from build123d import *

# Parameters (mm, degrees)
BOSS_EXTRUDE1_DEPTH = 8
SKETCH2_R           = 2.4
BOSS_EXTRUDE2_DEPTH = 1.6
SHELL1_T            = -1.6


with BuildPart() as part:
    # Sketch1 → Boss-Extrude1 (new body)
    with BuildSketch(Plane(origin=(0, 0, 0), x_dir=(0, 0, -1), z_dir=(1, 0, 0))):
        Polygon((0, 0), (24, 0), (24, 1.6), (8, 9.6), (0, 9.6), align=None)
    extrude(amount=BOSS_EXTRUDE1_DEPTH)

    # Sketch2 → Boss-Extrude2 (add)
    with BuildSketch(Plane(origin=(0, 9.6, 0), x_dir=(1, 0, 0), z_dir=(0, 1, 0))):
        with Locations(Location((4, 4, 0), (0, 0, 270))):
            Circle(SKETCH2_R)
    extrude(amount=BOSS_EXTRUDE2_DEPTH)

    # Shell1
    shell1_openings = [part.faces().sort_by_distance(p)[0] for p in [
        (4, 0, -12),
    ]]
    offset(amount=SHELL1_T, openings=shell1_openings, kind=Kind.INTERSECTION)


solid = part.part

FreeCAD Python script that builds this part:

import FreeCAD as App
import Part
import Sketcher


def faces_at(feature, points):
    """Names of the faces that lie closest to the given points."""
    faces = feature.Shape.Faces
    near = lambda p: min(range(len(faces)), key=lambda i: faces[i].distToShape(Part.Vertex(*p))[0])
    return sorted({f"Face{near(p) + 1}" for p in points})


def add_polygon(sketch, points):
    """Adds a closed chain of lines whose ends are joined by coincident constraints."""
    first, n = sketch.GeometryCount, len(points)
    for a, b in zip(points, points[1:] + points[:1]):
        sketch.addGeometry(Part.LineSegment(App.Vector(*a, 0), App.Vector(*b, 0)), False)
    for i in range(n):
        sketch.addConstraint(Sketcher.Constraint("Coincident", first + i, 2, first + (i + 1) % n, 1))

doc = App.newDocument("Part")
params = doc.addObject("Spreadsheet::Sheet", "Params")
for row, (alias, value) in enumerate([
    ("sketch1_height", "24 mm"),
    ("sketch1_height2", "8 mm"),
    ("sketch1_width", "1.6 mm"),
    ("sketch1_width2", "9.6 mm"),
    ("pad1_length", "8 mm"),
    ("sketch2_diameter", "4.8 mm"),
    ("pad2_length", "1.6 mm"),
    ("thickness_wall", "1.6 mm"),
], start=1):
    params.set(f"A{row}", alias)
    params.set(f"B{row}", "=" + value)
    params.setAlias(f"B{row}", alias)

body = doc.addObject("PartDesign::Body", "Body")

# Sketch on YZ plane
sketch1 = body.newObject("Sketcher::SketchObject", "Sketch")
sketch1.AttachmentSupport = (doc.getObject("YZ_Plane"), [""])
sketch1.MapMode = "FlatFace"
add_polygon(sketch1, [(0, 0), (0, -24), (1.6, -24), (9.6, -8), (9.6, 0)])  # lines 0-4
sketch1.addConstraint([
    Sketcher.Constraint("Vertical", 0),
    Sketcher.Constraint("Horizontal", 1),
    Sketcher.Constraint("Vertical", 3),
    Sketcher.Constraint("Horizontal", 4),
    Sketcher.Constraint("Coincident", 4, 2, -1, 1),
    Sketcher.Constraint("DistanceY", 0, 2, 0, 1, 24.0),
    Sketcher.Constraint("DistanceY", 3, 1, 3, 2, 8.0),
    Sketcher.Constraint("DistanceX", 1, 1, 1, 2, 1.6),
    Sketcher.Constraint("DistanceX", 4, 2, 4, 1, 9.6),
])
sketch1.setExpression("Constraints[10]", "Params.sketch1_height")
sketch1.setExpression("Constraints[11]", "Params.sketch1_height2")
sketch1.setExpression("Constraints[12]", "Params.sketch1_width")
sketch1.setExpression("Constraints[13]", "Params.sketch1_width2")
pad1 = body.newObject("PartDesign::Pad", "Pad")
pad1.Profile = sketch1
pad1.setExpression("Length", "Params.pad1_length")

# Sketch on XZ plane
sketch2 = body.newObject("Sketcher::SketchObject", "Sketch001")
sketch2.AttachmentSupport = (doc.getObject("XZ_Plane"), [""])
sketch2.MapMode = "FlatFace"
sketch2.AttachmentOffset = App.Placement(App.Vector(0, 0, -9.6), App.Rotation())
sketch2.addGeometry(Part.Circle(App.Vector(4, -4, 0), App.Vector(0, 0, 1), 2.4), False)
sketch2.addConstraint([
    Sketcher.Constraint("Diameter", 0, 4.8),
    Sketcher.Constraint("DistanceX", -1, 1, 0, 3, 4.0),
    Sketcher.Constraint("DistanceY", 0, 3, -1, 1, 4.0),
])
sketch2.setExpression("Constraints[0]", "Params.sketch2_diameter")
pad2 = body.newObject("PartDesign::Pad", "Pad001")
pad2.Profile = sketch2
pad2.setExpression("Length", "Params.pad2_length")
pad2.Reversed = True
doc.recompute()

thickness = body.newObject("PartDesign::Thickness", "Thickness")
thickness.Base = (pad2, faces_at(pad2, [(4, 0, -12)]))
thickness.setExpression("Value", "Params.thickness_wall")
thickness.Reversed = True
thickness.Join = "Intersection"

doc.recompute()
